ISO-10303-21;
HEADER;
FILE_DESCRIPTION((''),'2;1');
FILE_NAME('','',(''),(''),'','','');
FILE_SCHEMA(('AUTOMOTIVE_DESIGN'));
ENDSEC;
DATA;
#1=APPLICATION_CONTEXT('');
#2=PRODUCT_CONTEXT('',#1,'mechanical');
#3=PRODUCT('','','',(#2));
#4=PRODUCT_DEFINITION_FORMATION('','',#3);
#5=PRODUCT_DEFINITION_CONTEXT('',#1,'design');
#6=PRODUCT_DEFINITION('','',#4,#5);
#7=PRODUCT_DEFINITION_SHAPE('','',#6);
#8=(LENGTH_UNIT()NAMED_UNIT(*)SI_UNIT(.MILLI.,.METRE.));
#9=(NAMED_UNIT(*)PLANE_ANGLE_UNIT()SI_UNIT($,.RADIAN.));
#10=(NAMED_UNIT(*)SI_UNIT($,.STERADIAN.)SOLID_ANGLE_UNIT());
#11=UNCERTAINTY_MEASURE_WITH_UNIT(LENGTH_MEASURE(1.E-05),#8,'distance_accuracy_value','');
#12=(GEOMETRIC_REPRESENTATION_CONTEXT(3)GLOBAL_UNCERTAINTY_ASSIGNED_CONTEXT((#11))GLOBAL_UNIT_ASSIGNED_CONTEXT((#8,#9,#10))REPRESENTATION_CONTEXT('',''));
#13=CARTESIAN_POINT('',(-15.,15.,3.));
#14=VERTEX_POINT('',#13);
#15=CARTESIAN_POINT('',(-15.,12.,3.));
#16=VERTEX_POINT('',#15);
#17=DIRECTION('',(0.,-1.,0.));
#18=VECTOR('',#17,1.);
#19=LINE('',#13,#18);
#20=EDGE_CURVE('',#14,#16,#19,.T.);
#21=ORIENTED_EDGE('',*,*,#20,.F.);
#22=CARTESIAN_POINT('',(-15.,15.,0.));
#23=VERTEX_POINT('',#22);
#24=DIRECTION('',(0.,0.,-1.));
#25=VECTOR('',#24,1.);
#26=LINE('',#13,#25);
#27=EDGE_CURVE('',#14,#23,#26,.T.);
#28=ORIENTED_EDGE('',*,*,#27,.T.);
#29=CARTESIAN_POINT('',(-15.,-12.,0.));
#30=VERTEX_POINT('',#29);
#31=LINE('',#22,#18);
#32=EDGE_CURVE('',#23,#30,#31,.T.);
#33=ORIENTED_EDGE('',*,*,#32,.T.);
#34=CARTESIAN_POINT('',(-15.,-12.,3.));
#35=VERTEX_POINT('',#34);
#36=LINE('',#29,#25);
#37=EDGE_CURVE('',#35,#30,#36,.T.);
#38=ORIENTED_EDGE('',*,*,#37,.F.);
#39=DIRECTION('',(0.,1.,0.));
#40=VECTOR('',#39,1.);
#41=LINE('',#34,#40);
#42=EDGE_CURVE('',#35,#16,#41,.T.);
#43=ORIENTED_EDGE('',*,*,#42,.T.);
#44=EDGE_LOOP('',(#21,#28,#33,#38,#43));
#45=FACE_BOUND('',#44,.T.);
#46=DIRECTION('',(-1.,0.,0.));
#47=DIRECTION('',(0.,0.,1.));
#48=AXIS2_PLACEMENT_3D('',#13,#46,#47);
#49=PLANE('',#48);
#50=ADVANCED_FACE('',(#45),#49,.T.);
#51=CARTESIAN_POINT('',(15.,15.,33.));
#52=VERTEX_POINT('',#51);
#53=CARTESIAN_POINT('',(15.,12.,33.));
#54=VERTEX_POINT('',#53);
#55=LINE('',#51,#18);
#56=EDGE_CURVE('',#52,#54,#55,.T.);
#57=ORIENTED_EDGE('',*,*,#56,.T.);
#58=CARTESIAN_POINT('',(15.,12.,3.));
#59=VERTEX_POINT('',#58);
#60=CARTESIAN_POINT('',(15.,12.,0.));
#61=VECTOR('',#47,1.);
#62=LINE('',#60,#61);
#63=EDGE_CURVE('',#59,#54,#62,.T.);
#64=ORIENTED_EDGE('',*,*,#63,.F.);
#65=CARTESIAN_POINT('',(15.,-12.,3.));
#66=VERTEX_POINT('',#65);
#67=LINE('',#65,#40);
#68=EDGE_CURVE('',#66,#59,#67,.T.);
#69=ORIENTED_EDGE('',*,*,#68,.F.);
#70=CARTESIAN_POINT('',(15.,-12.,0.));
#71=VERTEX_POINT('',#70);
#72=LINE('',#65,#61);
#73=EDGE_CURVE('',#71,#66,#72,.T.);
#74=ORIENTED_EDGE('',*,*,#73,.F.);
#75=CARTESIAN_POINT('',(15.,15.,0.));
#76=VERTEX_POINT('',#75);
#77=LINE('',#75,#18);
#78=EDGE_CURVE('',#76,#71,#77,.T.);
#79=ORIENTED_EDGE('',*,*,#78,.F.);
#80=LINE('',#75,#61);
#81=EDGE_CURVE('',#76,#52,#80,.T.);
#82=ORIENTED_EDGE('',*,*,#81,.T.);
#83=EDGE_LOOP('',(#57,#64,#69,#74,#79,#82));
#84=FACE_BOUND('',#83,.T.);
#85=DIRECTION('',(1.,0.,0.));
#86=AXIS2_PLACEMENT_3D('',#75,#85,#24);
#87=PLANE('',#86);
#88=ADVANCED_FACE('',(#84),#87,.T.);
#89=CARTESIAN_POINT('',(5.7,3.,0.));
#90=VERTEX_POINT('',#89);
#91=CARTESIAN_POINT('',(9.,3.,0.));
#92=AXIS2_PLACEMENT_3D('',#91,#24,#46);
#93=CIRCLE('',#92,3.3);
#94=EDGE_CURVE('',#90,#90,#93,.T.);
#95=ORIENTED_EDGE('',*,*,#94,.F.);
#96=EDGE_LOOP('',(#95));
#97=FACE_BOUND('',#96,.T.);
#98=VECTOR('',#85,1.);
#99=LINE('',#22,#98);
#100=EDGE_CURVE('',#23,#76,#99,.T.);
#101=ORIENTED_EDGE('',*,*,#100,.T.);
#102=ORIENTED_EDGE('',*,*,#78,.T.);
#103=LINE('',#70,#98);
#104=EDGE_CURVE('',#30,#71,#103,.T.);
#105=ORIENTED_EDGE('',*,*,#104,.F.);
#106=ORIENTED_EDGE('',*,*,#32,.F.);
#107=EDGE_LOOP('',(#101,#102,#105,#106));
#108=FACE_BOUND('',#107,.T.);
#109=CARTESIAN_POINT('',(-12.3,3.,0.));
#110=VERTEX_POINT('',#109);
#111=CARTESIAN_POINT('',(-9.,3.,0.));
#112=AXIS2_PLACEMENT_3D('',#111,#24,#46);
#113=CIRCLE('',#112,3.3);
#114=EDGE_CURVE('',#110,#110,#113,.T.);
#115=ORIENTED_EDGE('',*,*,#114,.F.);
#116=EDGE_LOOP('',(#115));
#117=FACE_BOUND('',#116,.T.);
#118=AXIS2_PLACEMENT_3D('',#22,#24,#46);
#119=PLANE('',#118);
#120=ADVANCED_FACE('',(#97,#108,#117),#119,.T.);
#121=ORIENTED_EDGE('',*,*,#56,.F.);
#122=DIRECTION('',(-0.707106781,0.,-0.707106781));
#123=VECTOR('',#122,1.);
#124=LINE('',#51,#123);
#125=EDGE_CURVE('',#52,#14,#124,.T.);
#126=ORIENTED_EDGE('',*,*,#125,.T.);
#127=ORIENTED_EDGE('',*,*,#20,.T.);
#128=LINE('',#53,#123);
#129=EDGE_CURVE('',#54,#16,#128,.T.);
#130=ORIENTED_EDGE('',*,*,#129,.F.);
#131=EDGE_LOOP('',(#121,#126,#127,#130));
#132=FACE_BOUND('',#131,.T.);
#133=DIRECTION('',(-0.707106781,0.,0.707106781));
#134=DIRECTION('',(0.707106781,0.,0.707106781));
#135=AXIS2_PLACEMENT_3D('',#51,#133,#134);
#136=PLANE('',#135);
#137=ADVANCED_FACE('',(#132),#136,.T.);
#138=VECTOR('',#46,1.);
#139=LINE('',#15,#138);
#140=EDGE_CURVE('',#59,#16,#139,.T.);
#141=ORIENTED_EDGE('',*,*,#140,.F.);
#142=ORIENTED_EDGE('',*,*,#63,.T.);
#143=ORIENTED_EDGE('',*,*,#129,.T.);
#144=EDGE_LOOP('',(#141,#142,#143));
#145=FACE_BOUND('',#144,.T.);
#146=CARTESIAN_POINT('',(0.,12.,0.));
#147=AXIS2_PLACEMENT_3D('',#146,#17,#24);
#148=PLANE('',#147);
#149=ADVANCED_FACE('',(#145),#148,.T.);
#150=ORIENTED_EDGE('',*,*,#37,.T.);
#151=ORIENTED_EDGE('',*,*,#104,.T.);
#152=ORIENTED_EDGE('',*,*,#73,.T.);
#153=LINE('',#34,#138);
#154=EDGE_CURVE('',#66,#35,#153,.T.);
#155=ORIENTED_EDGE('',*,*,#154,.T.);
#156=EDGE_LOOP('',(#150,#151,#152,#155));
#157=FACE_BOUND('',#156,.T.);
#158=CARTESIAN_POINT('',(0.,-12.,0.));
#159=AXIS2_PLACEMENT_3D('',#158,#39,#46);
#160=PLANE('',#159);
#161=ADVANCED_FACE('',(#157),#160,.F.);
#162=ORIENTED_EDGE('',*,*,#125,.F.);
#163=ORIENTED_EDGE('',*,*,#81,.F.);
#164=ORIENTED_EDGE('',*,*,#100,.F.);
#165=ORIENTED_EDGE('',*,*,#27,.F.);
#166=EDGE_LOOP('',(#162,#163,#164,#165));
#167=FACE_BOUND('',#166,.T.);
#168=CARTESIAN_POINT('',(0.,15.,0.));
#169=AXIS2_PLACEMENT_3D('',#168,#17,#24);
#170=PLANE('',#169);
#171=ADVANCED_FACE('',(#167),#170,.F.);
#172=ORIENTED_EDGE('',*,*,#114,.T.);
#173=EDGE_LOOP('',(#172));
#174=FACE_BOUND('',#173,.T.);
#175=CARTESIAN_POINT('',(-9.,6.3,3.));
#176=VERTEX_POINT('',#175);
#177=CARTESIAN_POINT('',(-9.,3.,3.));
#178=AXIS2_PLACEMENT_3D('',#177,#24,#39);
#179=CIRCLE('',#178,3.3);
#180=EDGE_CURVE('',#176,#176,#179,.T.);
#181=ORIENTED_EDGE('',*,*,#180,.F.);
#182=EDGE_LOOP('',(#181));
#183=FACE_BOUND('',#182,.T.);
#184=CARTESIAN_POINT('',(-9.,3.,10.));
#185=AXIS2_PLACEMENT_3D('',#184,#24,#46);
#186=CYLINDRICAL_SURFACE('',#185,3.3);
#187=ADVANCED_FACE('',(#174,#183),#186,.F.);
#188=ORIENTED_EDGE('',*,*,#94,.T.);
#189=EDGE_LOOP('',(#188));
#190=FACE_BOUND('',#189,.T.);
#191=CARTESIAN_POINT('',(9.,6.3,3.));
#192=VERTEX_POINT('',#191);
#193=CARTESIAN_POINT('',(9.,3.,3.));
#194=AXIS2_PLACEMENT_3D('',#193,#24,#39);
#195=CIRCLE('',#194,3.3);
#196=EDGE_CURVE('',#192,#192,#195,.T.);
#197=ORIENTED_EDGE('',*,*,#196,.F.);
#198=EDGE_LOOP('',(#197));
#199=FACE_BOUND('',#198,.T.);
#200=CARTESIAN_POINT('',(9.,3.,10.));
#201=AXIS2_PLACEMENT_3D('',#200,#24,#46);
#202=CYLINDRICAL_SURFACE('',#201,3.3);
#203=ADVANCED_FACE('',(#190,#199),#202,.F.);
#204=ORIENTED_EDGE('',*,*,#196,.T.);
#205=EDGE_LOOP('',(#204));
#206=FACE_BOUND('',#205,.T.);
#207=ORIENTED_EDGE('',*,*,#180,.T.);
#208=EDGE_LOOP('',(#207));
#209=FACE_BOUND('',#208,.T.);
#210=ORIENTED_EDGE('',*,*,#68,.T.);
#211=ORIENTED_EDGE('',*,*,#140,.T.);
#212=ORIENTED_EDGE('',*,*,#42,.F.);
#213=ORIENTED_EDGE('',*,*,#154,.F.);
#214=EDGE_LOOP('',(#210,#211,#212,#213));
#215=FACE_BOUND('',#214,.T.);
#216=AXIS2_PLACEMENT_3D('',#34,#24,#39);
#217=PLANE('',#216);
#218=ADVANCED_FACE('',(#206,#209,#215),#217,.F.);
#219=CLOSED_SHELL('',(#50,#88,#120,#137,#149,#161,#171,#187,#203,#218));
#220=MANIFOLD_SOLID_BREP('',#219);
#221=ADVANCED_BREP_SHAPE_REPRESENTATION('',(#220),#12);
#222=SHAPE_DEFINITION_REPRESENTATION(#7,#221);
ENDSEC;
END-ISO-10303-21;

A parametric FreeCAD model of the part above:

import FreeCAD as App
import Part
import Sketcher
from FreeCAD import Vector
Q = App.Units.Quantity


def add_polygon(sketch, points):
    """Adds a closed chain of lines whose ends are joined by coincident constraints."""
    first, n = sketch.GeometryCount, len(points)
    for a, b in zip(points, points[1:] + points[:1]):
        sketch.addGeometry(Part.LineSegment(App.Vector(*a, 0), App.Vector(*b, 0)), False)
    for i in range(n):
        sketch.addConstraint(Sketcher.Constraint("Coincident", first + i, 2, first + (i + 1) % n, 1))

doc = App.newDocument("Part")
body = doc.addObject("PartDesign::Body", "Body")

# Sketch on XZ plane
sketch1 = doc.addObject("Sketcher::SketchObject", "Sketch")
body.addObject(sketch1)
sketch1.AttachmentSupport = (doc.XZ_Plane, [""])
sketch1.MapMode = "FlatFace"
sketch1.AttachmentOffset = App.Placement(Vector(0, 0, -12), App.Rotation())
add_polygon(sketch1, [(15, 0), (15, 33), (-15, 3), (-15, 0)])  # lines 0-3
sketch1.addConstraint([
    Sketcher.Constraint("Vertical", 0),
    Sketcher.Constraint("Vertical", 2),
    Sketcher.Constraint("Horizontal", 3),
    Sketcher.Constraint("Symmetric", 2, 2, 3, 2, -1, 1),
    Sketcher.Constraint("DistanceX", 3, 1, 3, 2, Q("30 mm")),
    Sketcher.Constraint("DistanceY", 0, 1, 0, 2, Q("33 mm")),
    Sketcher.Constraint("DistanceY", 2, 2, 2, 1, Q("3 mm")),
])
pad1 = doc.addObject("PartDesign::Pad", "Pad")
body.addObject(pad1)
pad1.Profile = sketch1
pad1.Length = 3
pad1.Reversed = True

# Sketch on XZ plane
sketch2 = doc.addObject("Sketcher::SketchObject", "Sketch001")
body.addObject(sketch2)
sketch2.AttachmentSupport = (doc.XZ_Plane, [""])
sketch2.MapMode = "FlatFace"
sketch2.AttachmentOffset = App.Placement(Vector(0, 0, -12), App.Rotation())
add_polygon(sketch2, [(-15, 3), (-15, 0), (15, 0), (15, 3)])  # lines 0-3
sketch2.addConstraint([
    Sketcher.Constraint("Vertical", 0),
    Sketcher.Constraint("Horizontal", 1),
    Sketcher.Constraint("Vertical", 2),
    Sketcher.Constraint("Horizontal", 3),
    Sketcher.Constraint("Symmetric", 0, 2, 1, 2, -1, 1),
    Sketcher.Constraint("DistanceX", 1, 1, 1, 2, Q("30 mm")),
    Sketcher.Constraint("DistanceY", 0, 2, 0, 1, Q("3 mm")),
])
pad2 = doc.addObject("PartDesign::Pad", "Pad001")
body.addObject(pad2)
pad2.Profile = sketch2
pad2.Length = 24

# Sketch on XY plane
sketch3 = doc.addObject("Sketcher::SketchObject", "Sketch002")
body.addObject(sketch3)
sketch3.AttachmentSupport = (doc.XY_Plane, [""])
sketch3.MapMode = "FlatFace"
sketch3.addGeometry([
    Part.Circle(Vector(9, 3, 0), Vector(0, 0, 1), 3.3),
    Part.Circle(Vector(-9, 3, 0), Vector(0, 0, 1), 3.3),
], False)
sketch3.addConstraint([
    Sketcher.Constraint("Equal", 0, 1),
    Sketcher.Constraint("Symmetric", 0, 3, 1, 3, -2),
    Sketcher.Constraint("Diameter", 0, Q("6.6 mm")),
    Sketcher.Constraint("DistanceX", -1, 1, 0, 3, Q("9 mm")),
    Sketcher.Constraint("DistanceY", -1, 1, 0, 3, Q("3 mm")),
])
pocket1 = doc.addObject("PartDesign::Pocket", "Pocket")
body.addObject(pocket1)
pocket1.Profile = sketch3
pocket1.Length = 10
pocket1.Reversed = True

doc.recompute()
